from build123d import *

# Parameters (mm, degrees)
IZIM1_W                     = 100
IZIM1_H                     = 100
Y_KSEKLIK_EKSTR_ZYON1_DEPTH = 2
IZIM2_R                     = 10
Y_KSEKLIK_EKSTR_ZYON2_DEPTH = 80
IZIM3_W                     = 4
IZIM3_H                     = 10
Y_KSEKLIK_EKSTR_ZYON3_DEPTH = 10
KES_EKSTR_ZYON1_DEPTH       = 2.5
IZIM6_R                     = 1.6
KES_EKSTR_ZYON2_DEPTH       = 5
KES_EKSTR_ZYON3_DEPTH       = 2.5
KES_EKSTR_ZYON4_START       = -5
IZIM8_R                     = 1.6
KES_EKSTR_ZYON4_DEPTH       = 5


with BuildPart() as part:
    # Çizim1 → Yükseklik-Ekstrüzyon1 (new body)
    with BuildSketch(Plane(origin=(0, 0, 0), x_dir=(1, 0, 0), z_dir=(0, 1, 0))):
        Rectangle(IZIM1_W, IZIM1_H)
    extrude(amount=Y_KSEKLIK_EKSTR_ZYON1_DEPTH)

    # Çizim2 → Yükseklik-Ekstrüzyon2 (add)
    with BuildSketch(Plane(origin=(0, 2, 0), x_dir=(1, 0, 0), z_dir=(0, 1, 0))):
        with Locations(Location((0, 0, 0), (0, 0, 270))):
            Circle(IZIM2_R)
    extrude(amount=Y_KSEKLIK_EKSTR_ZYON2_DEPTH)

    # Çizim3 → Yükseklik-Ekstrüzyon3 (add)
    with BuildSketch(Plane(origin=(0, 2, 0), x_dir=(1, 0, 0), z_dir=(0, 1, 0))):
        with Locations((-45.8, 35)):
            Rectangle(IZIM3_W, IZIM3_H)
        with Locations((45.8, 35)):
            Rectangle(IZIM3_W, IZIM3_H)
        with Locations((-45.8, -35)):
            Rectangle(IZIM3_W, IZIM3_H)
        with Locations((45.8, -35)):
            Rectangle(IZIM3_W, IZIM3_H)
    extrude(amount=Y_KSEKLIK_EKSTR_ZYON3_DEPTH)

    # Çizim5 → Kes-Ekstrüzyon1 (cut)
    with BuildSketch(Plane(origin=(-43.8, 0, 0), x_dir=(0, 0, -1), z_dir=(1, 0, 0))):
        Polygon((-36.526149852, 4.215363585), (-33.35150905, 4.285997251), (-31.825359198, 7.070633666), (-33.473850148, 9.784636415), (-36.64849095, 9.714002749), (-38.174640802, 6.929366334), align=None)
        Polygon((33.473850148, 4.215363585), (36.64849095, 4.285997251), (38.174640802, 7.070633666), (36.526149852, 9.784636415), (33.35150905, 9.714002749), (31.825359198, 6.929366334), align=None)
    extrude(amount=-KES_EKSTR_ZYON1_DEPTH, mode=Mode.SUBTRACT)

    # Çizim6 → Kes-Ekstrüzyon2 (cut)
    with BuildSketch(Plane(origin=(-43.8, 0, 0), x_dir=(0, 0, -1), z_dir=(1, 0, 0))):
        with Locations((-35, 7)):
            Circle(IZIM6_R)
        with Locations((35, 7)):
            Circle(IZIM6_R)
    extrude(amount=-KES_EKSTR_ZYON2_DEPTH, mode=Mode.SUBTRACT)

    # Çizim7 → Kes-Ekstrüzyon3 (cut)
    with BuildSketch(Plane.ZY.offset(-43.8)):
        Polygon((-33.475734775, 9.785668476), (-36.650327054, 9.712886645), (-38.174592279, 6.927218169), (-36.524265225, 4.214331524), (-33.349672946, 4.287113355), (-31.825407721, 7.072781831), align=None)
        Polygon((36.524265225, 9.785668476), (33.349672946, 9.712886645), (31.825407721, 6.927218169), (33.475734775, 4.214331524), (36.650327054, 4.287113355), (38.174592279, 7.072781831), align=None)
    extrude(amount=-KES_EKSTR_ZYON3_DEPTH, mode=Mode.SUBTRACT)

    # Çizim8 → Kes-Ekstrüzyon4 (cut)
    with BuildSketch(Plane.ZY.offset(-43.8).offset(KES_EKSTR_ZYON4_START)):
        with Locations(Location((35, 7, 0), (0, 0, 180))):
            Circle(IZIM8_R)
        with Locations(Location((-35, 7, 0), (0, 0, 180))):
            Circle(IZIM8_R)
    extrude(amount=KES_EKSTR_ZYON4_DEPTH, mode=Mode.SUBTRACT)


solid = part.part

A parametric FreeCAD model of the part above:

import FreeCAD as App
import Part
import Sketcher


def add_polygon(sketch, points):
    """Adds a closed chain of lines whose ends are joined by coincident constraints."""
    first, n = sketch.GeometryCount, len(points)
    for a, b in zip(points, points[1:] + points[:1]):
        sketch.addGeometry(Part.LineSegment(App.Vector(*a, 0), App.Vector(*b, 0)), False)
    for i in range(n):
        sketch.addConstraint(Sketcher.Constraint("Coincident", first + i, 2, first + (i + 1) % n, 1))

doc = App.newDocument("Part")
body = doc.addObject("PartDesign::Body", "Body")

# Sketch on XZ plane
sketch1 = body.newObject("Sketcher::SketchObject", "Sketch")
sketch1.AttachmentSupport = (doc.getObject("XZ_Plane"), [""])
sketch1.MapMode = "FlatFace"
add_polygon(sketch1, [(-50, -50), (-50, 50), (50, 50), (50, -50)])  # lines 0-3
sketch1.addConstraint(Sketcher.Constraint("Vertical", 0))
sketch1.addConstraint(Sketcher.Constraint("Horizontal", 1))
sketch1.addConstraint(Sketcher.Constraint("Vertical", 2))
sketch1.addConstraint(Sketcher.Constraint("Horizontal", 3))
sketch1.addConstraint(Sketcher.Constraint("Symmetric", 0, 2, 2, 2, -1, 1))
sketch1.addConstraint(Sketcher.Constraint("Equal", 3, 0))
sketch1.addConstraint(Sketcher.Constraint("DistanceX", 1, 1, 1, 2, 100.0))
pad1 = body.newObject("PartDesign::Pad", "Pad")
pad1.Profile = sketch1
pad1.Length = 2
pad1.Reversed = True

# Sketch on XZ plane
sketch2 = body.newObject("Sketcher::SketchObject", "Sketch001")
sketch2.AttachmentSupport = (doc.getObject("XZ_Plane"), [""])
sketch2.MapMode = "FlatFace"
sketch2.AttachmentOffset = App.Placement(App.Vector(0, 0, -2), App.Rotation())
sketch2.addGeometry(Part.Circle(App.Vector(0, 0, 0), App.Vector(0, 0, 1), 10), False)
sketch2.addConstraint(Sketcher.Constraint("Coincident", 0, 3, -1, 1))
sketch2.addConstraint(Sketcher.Constraint("Diameter", 0, 20.0))
pad2 = body.newObject("PartDesign::Pad", "Pad001")
pad2.Profile = sketch2
pad2.Length = 80
pad2.Reversed = True

# Sketch on XZ plane
sketch3 = body.newObject("Sketcher::SketchObject", "Sketch002")
sketch3.AttachmentSupport = (doc.getObject("XZ_Plane"), [""])
sketch3.MapMode = "FlatFace"
sketch3.AttachmentOffset = App.Placement(App.Vector(0, 0, -2), App.Rotation())
add_polygon(sketch3, [(-47.8, -40), (-47.8, -30), (-43.8, -30), (-43.8, -40)])  # lines 0-3
add_polygon(sketch3, [(43.8, -40), (43.8, -30), (47.8, -30), (47.8, -40)])  # lines 4-7
add_polygon(sketch3, [(-47.8, 30), (-47.8, 40), (-43.8, 40), (-43.8, 30)])  # lines 8-11
add_polygon(sketch3, [(43.8, 30), (43.8, 40), (47.8, 40), (47.8, 30)])  # lines 12-15
sketch3.addConstraint(Sketcher.Constraint("Vertical", 0))
sketch3.addConstraint(Sketcher.Constraint("Horizontal", 1))
sketch3.addConstraint(Sketcher.Constraint("Vertical", 2))
sketch3.addConstraint(Sketcher.Constraint("Horizontal", 3))
sketch3.addConstraint(Sketcher.Constraint("Vertical", 4))
sketch3.addConstraint(Sketcher.Constraint("Horizontal", 5))
sketch3.addConstraint(Sketcher.Constraint("Vertical", 6))
sketch3.addConstraint(Sketcher.Constraint("Horizontal", 7))
sketch3.addConstraint(Sketcher.Constraint("Vertical", 8))
sketch3.addConstraint(Sketcher.Constraint("Horizontal", 9))
sketch3.addConstraint(Sketcher.Constraint("Vertical", 10))
sketch3.addConstraint(Sketcher.Constraint("Horizontal", 11))
sketch3.addConstraint(Sketcher.Constraint("Vertical", 12))
sketch3.addConstraint(Sketcher.Constraint("Horizontal", 13))
sketch3.addConstraint(Sketcher.Constraint("Vertical", 14))
sketch3.addConstraint(Sketcher.Constraint("Horizontal", 15))
sketch3.addConstraint(Sketcher.Constraint("Symmetric", 6, 2, 8, 2, -1, 1))
sketch3.addConstraint(Sketcher.Constraint("Symmetric", 4, 2, 10, 2, -1, 1))
sketch3.addConstraint(Sketcher.Constraint("Symmetric", 2, 2, 12, 2, -1, 1))
sketch3.addConstraint(Sketcher.Constraint("Symmetric", 0, 2, 14, 2, -1, 1))
sketch3.addConstraint(Sketcher.Constraint("Symmetric", 1, 2, 4, 2, -2))
sketch3.addConstraint(Sketcher.Constraint("Symmetric", 3, 2, 6, 2, -2))
sketch3.addConstraint(Sketcher.Constraint("DistanceX", 1, 1, 1, 2, 4.0))
sketch3.addConstraint(Sketcher.Constraint("DistanceY", 0, 1, 0, 2, 10.0))
sketch3.addConstraint(Sketcher.Constraint("DistanceY", 0, 2, -1, 1, 30.0))
sketch3.addConstraint(Sketcher.Constraint("DistanceX", 0, 2, -1, 1, 47.8))
pad3 = body.newObject("PartDesign::Pad", "Pad002")
pad3.Profile = sketch3
pad3.Length = 10
pad3.Reversed = True

# Sketch on YZ plane
sketch4 = body.newObject("Sketcher::SketchObject", "Sketch003")
sketch4.AttachmentSupport = (doc.getObject("YZ_Plane"), [""])
sketch4.MapMode = "FlatFace"
sketch4.AttachmentOffset = App.Placement(App.Vector(0, 0, -43.8), App.Rotation())
add_polygon(sketch4, [(4.2, 36.5), (4.3, 33.4), (7.1, 31.8), (9.8, 33.5), (9.7, 36.6), (6.9, 38.2)])  # lines 0-5
add_polygon(sketch4, [(4.2, -33.5), (4.3, -36.6), (7.1, -38.2), (9.8, -36.5), (9.7, -33.4), (6.9, -31.8)])  # lines 6-11
sketch4.addConstraint(Sketcher.Constraint("Parallel", 0, 3))
sketch4.addConstraint(Sketcher.Constraint("Parallel", 1, 4))
sketch4.addConstraint(Sketcher.Constraint("Parallel", 2, 5))
sketch4.addConstraint(Sketcher.Constraint("Parallel", 3, 6))
sketch4.addConstraint(Sketcher.Constraint("Parallel", 4, 7))
sketch4.addConstraint(Sketcher.Constraint("Parallel", 5, 8))
sketch4.addConstraint(Sketcher.Constraint("Parallel", 6, 9))
sketch4.addConstraint(Sketcher.Constraint("Parallel", 7, 10))
sketch4.addConstraint(Sketcher.Constraint("Parallel", 8, 11))
sketch4.addConstraint(Sketcher.Constraint("Vertical", 0, 2, 6, 2))
sketch4.addConstraint(Sketcher.Constraint("Vertical", 1, 2, 7, 2))
sketch4.addConstraint(Sketcher.Constraint("Vertical", 2, 2, 8, 2))
sketch4.addConstraint(Sketcher.Constraint("Vertical", 3, 2, 9, 2))
sketch4.addConstraint(Sketcher.Constraint("Vertical", 4, 2, 10, 2))
sketch4.addConstraint(Sketcher.Constraint("Equal", 0, 1))
sketch4.addConstraint(Sketcher.Constraint("Equal", 1, 2))
sketch4.addConstraint(Sketcher.Constraint("Equal", 2, 3))
sketch4.addConstraint(Sketcher.Constraint("DistanceY", 6, 2, 0, 2, 70.0))
sketch4.addConstraint(Sketcher.Constraint("DistanceY", 2, 2, 5, 2, 3.0523))
sketch4.addConstraint(Sketcher.Constraint("DistanceY", -1, 1, 0, 2, 33.351509))
sketch4.addConstraint(Sketcher.Constraint("DistanceY", -1, 1, 1, 2, 31.825359))
sketch4.addConstraint(Sketcher.Constraint("DistanceY", -1, 1, 2, 2, 33.47385))
sketch4.addConstraint(Sketcher.Constraint("DistanceX", 0, 2, 2, 2, 5.498639))
sketch4.addConstraint(Sketcher.Constraint("DistanceX", -1, 1, 0, 2, 4.285997))
pocket1 = body.newObject("PartDesign::Pocket", "Pocket")
pocket1.Profile = sketch4
pocket1.Length = 2.5

# Sketch on YZ plane
sketch5 = body.newObject("Sketcher::SketchObject", "Sketch004")
sketch5.AttachmentSupport = (doc.getObject("YZ_Plane"), [""])
sketch5.MapMode = "FlatFace"
sketch5.AttachmentOffset = App.Placement(App.Vector(0, 0, -43.8), App.Rotation())
sketch5.addGeometry(Part.Circle(App.Vector(7, 35, 0), App.Vector(0, 0, 1), 1.6), False)
sketch5.addGeometry(Part.Circle(App.Vector(7, -35, 0), App.Vector(0, 0, 1), 1.6), False)
sketch5.addConstraint(Sketcher.Constraint("Equal", 0, 1))
sketch5.addConstraint(Sketcher.Constraint("Symmetric", 0, 3, 1, 3, -1))
sketch5.addConstraint(Sketcher.Constraint("Diameter", 0, 3.2))
sketch5.addConstraint(Sketcher.Constraint("DistanceX", -1, 1, 0, 3, 7.0))
sketch5.addConstraint(Sketcher.Constraint("DistanceY", -1, 1, 0, 3, 35.0))
pocket2 = body.newObject("PartDesign::Pocket", "Pocket001")
pocket2.Profile = sketch5
pocket2.Length = 5

# Sketch on YZ plane
sketch6 = body.newObject("Sketcher::SketchObject", "Sketch005")
sketch6.AttachmentSupport = (doc.getObject("YZ_Plane"), [""])
sketch6.MapMode = "FlatFace"
sketch6.AttachmentOffset = App.Placement(App.Vector(0, 0, 43.8), App.Rotation())
add_polygon(sketch6, [(9.8, -33.5), (9.7, -36.7), (6.9, -38.2), (4.2, -36.5), (4.3, -33.3), (7.1, -31.8)])  # lines 0-5
add_polygon(sketch6, [(9.8, 36.5), (9.7, 33.3), (6.9, 31.8), (4.2, 33.5), (4.3, 36.7), (7.1, 38.2)])  # lines 6-11
sketch6.addConstraint(Sketcher.Constraint("Parallel", 0, 3))
sketch6.addConstraint(Sketcher.Constraint("Parallel", 1, 4))
sketch6.addConstraint(Sketcher.Constraint("Parallel", 2, 5))
sketch6.addConstraint(Sketcher.Constraint("Parallel", 3, 6))
sketch6.addConstraint(Sketcher.Constraint("Parallel", 4, 7))
sketch6.addConstraint(Sketcher.Constraint("Parallel", 5, 8))
sketch6.addConstraint(Sketcher.Constraint("Parallel", 6, 9))
sketch6.addConstraint(Sketcher.Constraint("Parallel", 7, 10))
sketch6.addConstraint(Sketcher.Constraint("Parallel", 8, 11))
sketch6.addConstraint(Sketcher.Constraint("Vertical", 0, 2, 6, 2))
sketch6.addConstraint(Sketcher.Constraint("Vertical", 1, 2, 7, 2))
sketch6.addConstraint(Sketcher.Constraint("Vertical", 2, 2, 8, 2))
sketch6.addConstraint(Sketcher.Constraint("Vertical", 3, 2, 9, 2))
sketch6.addConstraint(Sketcher.Constraint("Vertical", 4, 2, 10, 2))
sketch6.addConstraint(Sketcher.Constraint("Equal", 0, 1))
sketch6.addConstraint(Sketcher.Constraint("Equal", 1, 2))
sketch6.addConstraint(Sketcher.Constraint("Equal", 2, 3))
sketch6.addConstraint(Sketcher.Constraint("DistanceY", 0, 2, 6, 2, 70.0))
sketch6.addConstraint(Sketcher.Constraint("DistanceX", -1, 1, 1, 2, 6.927218))
sketch6.addConstraint(Sketcher.Constraint("DistanceX", -1, 1, 2, 2, 4.214332))
sketch6.addConstraint(Sketcher.Constraint("DistanceX", -1, 1, 4, 2, 7.072782))
sketch6.addConstraint(Sketcher.Constraint("DistanceX", 1, 2, 0, 2, 2.785668))
sketch6.addConstraint(Sketcher.Constraint("DistanceY", 0, 2, 2, 2, 0.126062))
sketch6.addConstraint(Sketcher.Constraint("DistanceY", 0, 2, -1, 1, 36.650327))
pocket3 = body.newObject("PartDesign::Pocket", "Pocket002")
pocket3.Profile = sketch6
pocket3.Length = 2.5
pocket3.Reversed = True

# Sketch on YZ plane
sketch7 = body.newObject("Sketcher::SketchObject", "Sketch006")
sketch7.AttachmentSupport = (doc.getObject("YZ_Plane"), [""])
sketch7.MapMode = "FlatFace"
sketch7.AttachmentOffset = App.Placement(App.Vector(0, 0, 48.8), App.Rotation())
sketch7.addGeometry(Part.Circle(App.Vector(7, 35, 0), App.Vector(0, 0, 1), 1.6), False)
sketch7.addGeometry(Part.Circle(App.Vector(7, -35, 0), App.Vector(0, 0, 1), 1.6), False)
sketch7.addConstraint(Sketcher.Constraint("Equal", 0, 1))
sketch7.addConstraint(Sketcher.Constraint("Symmetric", 0, 3, 1, 3, -1))
sketch7.addConstraint(Sketcher.Constraint("Diameter", 0, 3.2))
sketch7.addConstraint(Sketcher.Constraint("DistanceX", -1, 1, 0, 3, 7.0))
sketch7.addConstraint(Sketcher.Constraint("DistanceY", -1, 1, 0, 3, 35.0))
pocket4 = body.newObject("PartDesign::Pocket", "Pocket003")
pocket4.Profile = sketch7
pocket4.Length = 5

doc.recompute()
